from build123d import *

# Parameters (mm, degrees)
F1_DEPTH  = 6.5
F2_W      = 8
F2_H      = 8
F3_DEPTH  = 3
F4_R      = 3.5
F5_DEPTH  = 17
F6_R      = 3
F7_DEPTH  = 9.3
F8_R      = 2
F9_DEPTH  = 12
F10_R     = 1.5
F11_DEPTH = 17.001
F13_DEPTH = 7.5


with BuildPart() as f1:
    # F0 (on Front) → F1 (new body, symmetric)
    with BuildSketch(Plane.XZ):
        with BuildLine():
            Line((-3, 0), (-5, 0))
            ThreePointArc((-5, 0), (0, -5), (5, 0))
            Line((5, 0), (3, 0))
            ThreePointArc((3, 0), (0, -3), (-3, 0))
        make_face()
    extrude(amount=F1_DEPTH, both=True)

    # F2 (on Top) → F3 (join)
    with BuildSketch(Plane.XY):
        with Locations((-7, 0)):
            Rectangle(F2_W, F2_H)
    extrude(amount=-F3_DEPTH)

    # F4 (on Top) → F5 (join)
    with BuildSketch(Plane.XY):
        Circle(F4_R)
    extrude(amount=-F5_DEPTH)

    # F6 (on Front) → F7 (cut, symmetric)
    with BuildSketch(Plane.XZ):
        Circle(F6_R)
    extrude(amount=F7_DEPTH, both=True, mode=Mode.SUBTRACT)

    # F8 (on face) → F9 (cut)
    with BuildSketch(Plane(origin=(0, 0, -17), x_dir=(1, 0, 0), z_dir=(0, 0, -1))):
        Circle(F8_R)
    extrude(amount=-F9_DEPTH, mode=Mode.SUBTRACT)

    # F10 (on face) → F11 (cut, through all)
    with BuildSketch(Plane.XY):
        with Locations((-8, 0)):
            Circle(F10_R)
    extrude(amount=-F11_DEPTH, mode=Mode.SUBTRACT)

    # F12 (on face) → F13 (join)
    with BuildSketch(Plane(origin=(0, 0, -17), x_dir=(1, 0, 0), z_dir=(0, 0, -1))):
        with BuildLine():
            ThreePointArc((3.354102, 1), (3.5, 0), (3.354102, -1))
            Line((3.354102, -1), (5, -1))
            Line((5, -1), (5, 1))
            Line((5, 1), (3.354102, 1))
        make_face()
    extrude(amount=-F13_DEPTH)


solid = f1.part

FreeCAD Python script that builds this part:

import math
import FreeCAD as App
import Part
import Sketcher
Q = App.Units.Quantity


def add_polygon(sketch, points):
    """Adds a closed chain of lines whose ends are joined by coincident constraints."""
    first, n = sketch.GeometryCount, len(points)
    for a, b in zip(points, points[1:] + points[:1]):
        sketch.addGeometry(Part.LineSegment(App.Vector(*a, 0), App.Vector(*b, 0)), False)
    for i in range(n):
        sketch.addConstraint(Sketcher.Constraint("Coincident", first + i, 2, first + (i + 1) % n, 1))

doc = App.newDocument("Part")
params = doc.addObject("Spreadsheet::Sheet", "Params")
for row, (alias, value) in enumerate([
    ("sketch1_radius", "5 mm"),
    ("sketch1_radius2", "3 mm"),
    ("pad1_length", "13 mm"),
    ("sketch2_width", "8 mm"),
    ("pad2_length", "3 mm"),
    ("sketch3_diameter", "7 mm"),
    ("pad3_length", "17 mm"),
    ("sketch4_diameter", "6 mm"),
    ("pocket1_length", "18.6 mm"),
    ("sketch5_diameter", "4 mm"),
    ("pocket2_length", "12 mm"),
    ("sketch6_diameter", "3 mm"),
    ("sketch7_radius", "3.500001 mm"),
    ("sketch7_height", "2 mm"),
    ("pad4_length", "7.5 mm"),
], start=1):
    params.set(f"A{row}", alias)
    params.set(f"B{row}", "=" + value)
    params.setAlias(f"B{row}", alias)

body = doc.addObject("PartDesign::Body", "Body")

sketch1 = body.newObject("Sketcher::SketchObject", "Sketch")
sketch1.AttachmentSupport = (doc.getObject("XZ_Plane"), [""])
sketch1.MapMode = "FlatFace"
sketch1.addGeometry(Part.LineSegment(App.Vector(-3, 0, 0), App.Vector(-5, 0, 0)), False)
sketch1.addGeometry(Part.ArcOfCircle(Part.Circle(App.Vector(0, 0, 0), App.Vector(0, 0, 1), 5), math.radians(180), math.radians(360)), False)
sketch1.addGeometry(Part.LineSegment(App.Vector(5, 0, 0), App.Vector(3, 0, 0)), False)
sketch1.addGeometry(Part.ArcOfCircle(Part.Circle(App.Vector(0, 0, 0), App.Vector(0, 0, 1), 3), math.radians(180), math.radians(360)), False)
sketch1.addConstraint(Sketcher.Constraint("Coincident", 0, 2, 1, 1))
sketch1.addConstraint(Sketcher.Constraint("Coincident", 1, 2, 2, 1))
sketch1.addConstraint(Sketcher.Constraint("Coincident", 2, 2, 3, 2))
sketch1.addConstraint(Sketcher.Constraint("Coincident", 3, 1, 0, 1))
sketch1.addConstraint(Sketcher.Constraint("Horizontal", 0))
sketch1.addConstraint(Sketcher.Constraint("Horizontal", 2))
sketch1.addConstraint(Sketcher.Constraint("Coincident", 1, 3, -1, 1))
sketch1.addConstraint(Sketcher.Constraint("Coincident", 3, 3, -1, 1))
sketch1.addConstraint(Sketcher.Constraint("PointOnObject", 0, 2, -1))
sketch1.addConstraint(Sketcher.Constraint("PointOnObject", 1, 2, -1))
sketch1.addConstraint(Sketcher.Constraint("Radius", 1, Q("5 mm")))
sketch1.addConstraint(Sketcher.Constraint("Radius", 3, Q("3 mm")))
sketch1.setExpression("Constraints[10]", "Params.sketch1_radius")
sketch1.setExpression("Constraints[11]", "Params.sketch1_radius2")
pad1 = body.newObject("PartDesign::Pad", "Pad")
pad1.Profile = sketch1
pad1.setExpression("Length", "Params.pad1_length")
pad1.Midplane = True

sketch2 = body.newObject("Sketcher::SketchObject", "Sketch001")
sketch2.AttachmentSupport = (doc.getObject("XY_Plane"), [""])
sketch2.MapMode = "FlatFace"
add_polygon(sketch2, [(-11, 4), (-11, -4), (-3, -4), (-3, 4)])
sketch2.addConstraint(Sketcher.Constraint("Vertical", 0))
sketch2.addConstraint(Sketcher.Constraint("Horizontal", 1))
sketch2.addConstraint(Sketcher.Constraint("Vertical", 2))
sketch2.addConstraint(Sketcher.Constraint("Horizontal", 3))
sketch2.addConstraint(Sketcher.Constraint("Equal", 3, 0))
sketch2.addConstraint(Sketcher.Constraint("DistanceX", 1, 1, 1, 2, Q("8 mm")))
sketch2.addConstraint(Sketcher.Constraint("DistanceX", 0, 2, -1, 1, Q("11 mm")))
sketch2.addConstraint(Sketcher.Constraint("DistanceY", 0, 2, -1, 1, Q("4 mm")))
sketch2.setExpression("Constraints[9]", "Params.sketch2_width")
pad2 = body.newObject("PartDesign::Pad", "Pad001")
pad2.Profile = sketch2
pad2.setExpression("Length", "Params.pad2_length")
pad2.Reversed = True

sketch3 = body.newObject("Sketcher::SketchObject", "Sketch002")
sketch3.AttachmentSupport = (doc.getObject("XY_Plane"), [""])
sketch3.MapMode = "FlatFace"
sketch3.addGeometry(Part.Circle(App.Vector(0, 0, 0), App.Vector(0, 0, 1), 3.5), False)
sketch3.addConstraint(Sketcher.Constraint("Coincident", 0, 3, -1, 1))
sketch3.addConstraint(Sketcher.Constraint("Diameter", 0, Q("7 mm")))
sketch3.setExpression("Constraints[1]", "Params.sketch3_diameter")
pad3 = body.newObject("PartDesign::Pad", "Pad002")
pad3.Profile = sketch3
pad3.setExpression("Length", "Params.pad3_length")
pad3.Reversed = True

sketch4 = body.newObject("Sketcher::SketchObject", "Sketch003")
sketch4.AttachmentSupport = (doc.getObject("XZ_Plane"), [""])
sketch4.MapMode = "FlatFace"
sketch4.addGeometry(Part.Circle(App.Vector(0, 0, 0), App.Vector(0, 0, 1), 3), False)
sketch4.addConstraint(Sketcher.Constraint("Coincident", 0, 3, -1, 1))
sketch4.addConstraint(Sketcher.Constraint("Diameter", 0, Q("6 mm")))
sketch4.setExpression("Constraints[1]", "Params.sketch4_diameter")
pocket1 = body.newObject("PartDesign::Pocket", "Pocket")
pocket1.Profile = sketch4
pocket1.setExpression("Length", "Params.pocket1_length")
pocket1.Midplane = True

sketch5 = body.newObject("Sketcher::SketchObject", "Sketch004")
sketch5.AttachmentSupport = (doc.getObject("XY_Plane"), [""])
sketch5.MapMode = "FlatFace"
sketch5.AttachmentOffset = App.Placement(App.Vector(0, 0, -17), App.Rotation())
sketch5.addGeometry(Part.Circle(App.Vector(0, 0, 0), App.Vector(0, 0, 1), 2), False)
sketch5.addConstraint(Sketcher.Constraint("Coincident", 0, 3, -1, 1))
sketch5.addConstraint(Sketcher.Constraint("Diameter", 0, Q("4 mm")))
sketch5.setExpression("Constraints[1]", "Params.sketch5_diameter")
pocket2 = body.newObject("PartDesign::Pocket", "Pocket001")
pocket2.Profile = sketch5
pocket2.setExpression("Length", "Params.pocket2_length")
pocket2.Reversed = True

sketch6 = body.newObject("Sketcher::SketchObject", "Sketch005")
sketch6.AttachmentSupport = (doc.getObject("XY_Plane"), [""])
sketch6.MapMode = "FlatFace"
sketch6.addGeometry(Part.Circle(App.Vector(-8, 0, 0), App.Vector(0, 0, 1), 1.5), False)
sketch6.addConstraint(Sketcher.Constraint("PointOnObject", 0, 3, -1))
sketch6.addConstraint(Sketcher.Constraint("Diameter", 0, Q("3 mm")))
sketch6.addConstraint(Sketcher.Constraint("DistanceX", 0, 3, -1, 1, Q("8 mm")))
sketch6.setExpression("Constraints[1]", "Params.sketch6_diameter")
pocket3 = body.newObject("PartDesign::Pocket", "Pocket002")
pocket3.Profile = sketch6
pocket3.Type = "ThroughAll"

sketch7 = body.newObject("Sketcher::SketchObject", "Sketch006")
sketch7.AttachmentSupport = (doc.getObject("XY_Plane"), [""])
sketch7.MapMode = "FlatFace"
sketch7.AttachmentOffset = App.Placement(App.Vector(0, 0, -17), App.Rotation())
sketch7.addGeometry(Part.ArcOfCircle(Part.Circle(App.Vector(-0.000001, 0, 0), App.Vector(0, 0, 1), 3.500001), math.radians(-16.601546), math.radians(16.601546)), False)
sketch7.addGeometry(Part.LineSegment(App.Vector(3.354102, 1, 0), App.Vector(5, 1, 0)), False)
sketch7.addGeometry(Part.LineSegment(App.Vector(5, 1, 0), App.Vector(5, -1, 0)), False)
sketch7.addGeometry(Part.LineSegment(App.Vector(5, -1, 0), App.Vector(3.354102, -1, 0)), False)
sketch7.addConstraint(Sketcher.Constraint("Coincident", 0, 2, 1, 1))
sketch7.addConstraint(Sketcher.Constraint("Coincident", 1, 2, 2, 1))
sketch7.addConstraint(Sketcher.Constraint("Coincident", 2, 2, 3, 1))
sketch7.addConstraint(Sketcher.Constraint("Coincident", 3, 2, 0, 1))
sketch7.addConstraint(Sketcher.Constraint("Horizontal", 1))
sketch7.addConstraint(Sketcher.Constraint("Vertical", 2))
sketch7.addConstraint(Sketcher.Constraint("Horizontal", 3))
sketch7.addConstraint(Sketcher.Constraint("Coincident", 0, 3, -1, 1))
sketch7.addConstraint(Sketcher.Constraint("Vertical", 0, 2, 3, 2))
sketch7.addConstraint(Sketcher.Constraint("Radius", 0, Q("3.500001 mm")))
sketch7.addConstraint(Sketcher.Constraint("DistanceY", 2, 2, 2, 1, Q("2 mm")))
sketch7.addConstraint(Sketcher.Constraint("DistanceX", -1, 1, 1, 2, Q("5 mm")))
sketch7.setExpression("Constraints[9]", "Params.sketch7_radius")
sketch7.setExpression("Constraints[10]", "Params.sketch7_height")
pad4 = body.newObject("PartDesign::Pad", "Pad003")
pad4.Profile = sketch7
pad4.setExpression("Length", "Params.pad4_length")

doc.recompute()
